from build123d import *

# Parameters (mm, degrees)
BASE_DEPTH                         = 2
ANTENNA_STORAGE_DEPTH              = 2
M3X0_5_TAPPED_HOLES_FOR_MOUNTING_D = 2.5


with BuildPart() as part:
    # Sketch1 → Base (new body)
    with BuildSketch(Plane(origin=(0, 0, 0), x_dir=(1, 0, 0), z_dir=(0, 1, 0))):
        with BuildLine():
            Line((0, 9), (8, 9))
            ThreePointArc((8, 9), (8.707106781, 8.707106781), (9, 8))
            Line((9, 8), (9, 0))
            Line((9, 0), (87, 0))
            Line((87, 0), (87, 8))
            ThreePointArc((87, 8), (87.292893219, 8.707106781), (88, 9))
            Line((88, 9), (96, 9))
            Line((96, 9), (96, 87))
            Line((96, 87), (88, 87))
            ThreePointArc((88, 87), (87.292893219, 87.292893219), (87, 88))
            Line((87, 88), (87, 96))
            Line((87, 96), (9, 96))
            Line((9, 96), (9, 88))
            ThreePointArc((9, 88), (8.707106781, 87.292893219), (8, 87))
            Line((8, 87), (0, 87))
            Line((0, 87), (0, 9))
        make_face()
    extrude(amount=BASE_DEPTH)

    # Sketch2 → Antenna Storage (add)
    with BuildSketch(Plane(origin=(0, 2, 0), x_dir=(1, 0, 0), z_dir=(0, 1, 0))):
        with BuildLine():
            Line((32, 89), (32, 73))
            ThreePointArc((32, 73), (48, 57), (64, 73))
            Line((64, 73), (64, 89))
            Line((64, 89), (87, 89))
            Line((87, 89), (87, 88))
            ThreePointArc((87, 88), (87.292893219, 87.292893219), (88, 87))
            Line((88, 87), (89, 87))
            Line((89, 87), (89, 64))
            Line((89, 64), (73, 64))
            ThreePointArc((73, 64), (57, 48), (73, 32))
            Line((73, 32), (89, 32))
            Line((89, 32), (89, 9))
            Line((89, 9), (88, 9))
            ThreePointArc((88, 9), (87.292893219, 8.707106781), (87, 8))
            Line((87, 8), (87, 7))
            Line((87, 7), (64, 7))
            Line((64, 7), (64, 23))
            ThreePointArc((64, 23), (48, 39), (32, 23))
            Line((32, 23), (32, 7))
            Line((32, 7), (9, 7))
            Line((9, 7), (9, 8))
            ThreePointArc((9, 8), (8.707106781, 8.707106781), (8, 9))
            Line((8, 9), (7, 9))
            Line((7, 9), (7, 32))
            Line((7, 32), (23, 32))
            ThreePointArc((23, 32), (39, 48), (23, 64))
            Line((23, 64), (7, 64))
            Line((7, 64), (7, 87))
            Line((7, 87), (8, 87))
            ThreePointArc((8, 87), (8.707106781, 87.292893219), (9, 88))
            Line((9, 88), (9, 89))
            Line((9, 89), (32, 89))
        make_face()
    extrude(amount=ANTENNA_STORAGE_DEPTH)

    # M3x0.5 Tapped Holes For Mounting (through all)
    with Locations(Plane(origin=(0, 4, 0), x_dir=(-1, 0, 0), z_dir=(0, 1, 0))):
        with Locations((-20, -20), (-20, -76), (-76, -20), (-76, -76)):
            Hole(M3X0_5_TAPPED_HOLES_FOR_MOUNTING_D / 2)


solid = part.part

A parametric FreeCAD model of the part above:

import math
import FreeCAD as App
import Part
import Sketcher
Q = App.Units.Quantity

doc = App.newDocument("Part")
body = doc.addObject("PartDesign::Body", "Body")

sketch1 = body.newObject("Sketcher::SketchObject", "Sketch")
sketch1.AttachmentSupport = (doc.getObject("XZ_Plane"), [""])
sketch1.MapMode = "FlatFace"
sketch1.addGeometry(Part.LineSegment(App.Vector(0, -9, 0), App.Vector(8, -9, 0)), False)
sketch1.addGeometry(Part.ArcOfCircle(Part.Circle(App.Vector(8, -8, 0), App.Vector(0, 0, 1), 1), math.radians(-90), math.radians(0)), False)
sketch1.addGeometry(Part.LineSegment(App.Vector(9, -8, 0), App.Vector(9, 0, 0)), False)
sketch1.addGeometry(Part.LineSegment(App.Vector(9, 0, 0), App.Vector(87, 0, 0)), False)
sketch1.addGeometry(Part.LineSegment(App.Vector(87, 0, 0), App.Vector(87, -8, 0)), False)
sketch1.addGeometry(Part.ArcOfCircle(Part.Circle(App.Vector(88, -8, 0), App.Vector(0, 0, 1), 1), math.radians(-180), math.radians(-90)), False)
sketch1.addGeometry(Part.LineSegment(App.Vector(88, -9, 0), App.Vector(96, -9, 0)), False)
sketch1.addGeometry(Part.LineSegment(App.Vector(96, -9, 0), App.Vector(96, -87, 0)), False)
sketch1.addGeometry(Part.LineSegment(App.Vector(96, -87, 0), App.Vector(88, -87, 0)), False)
sketch1.addGeometry(Part.ArcOfCircle(Part.Circle(App.Vector(88, -88, 0), App.Vector(0, 0, 1), 1), math.radians(90), math.radians(180)), False)
sketch1.addGeometry(Part.LineSegment(App.Vector(87, -88, 0), App.Vector(87, -96, 0)), False)
sketch1.addGeometry(Part.LineSegment(App.Vector(87, -96, 0), App.Vector(9, -96, 0)), False)
sketch1.addGeometry(Part.LineSegment(App.Vector(9, -96, 0), App.Vector(9, -88, 0)), False)
sketch1.addGeometry(Part.ArcOfCircle(Part.Circle(App.Vector(8, -88, 0), App.Vector(0, 0, 1), 1), math.radians(0), math.radians(90)), False)
sketch1.addGeometry(Part.LineSegment(App.Vector(8, -87, 0), App.Vector(0, -87, 0)), False)
sketch1.addGeometry(Part.LineSegment(App.Vector(0, -87, 0), App.Vector(0, -9, 0)), False)
sketch1.addConstraint(Sketcher.Constraint("Tangent", 0, 2, 1, 1))
sketch1.addConstraint(Sketcher.Constraint("Tangent", 1, 2, 2, 1))
sketch1.addConstraint(Sketcher.Constraint("Coincident", 2, 2, 3, 1))
sketch1.addConstraint(Sketcher.Constraint("Coincident", 3, 2, 4, 1))
sketch1.addConstraint(Sketcher.Constraint("Tangent", 4, 2, 5, 1))
sketch1.addConstraint(Sketcher.Constraint("Tangent", 5, 2, 6, 1))
sketch1.addConstraint(Sketcher.Constraint("Coincident", 6, 2, 7, 1))
sketch1.addConstraint(Sketcher.Constraint("Coincident", 7, 2, 8, 1))
sketch1.addConstraint(Sketcher.Constraint("Tangent", 8, 2, 9, 1))
sketch1.addConstraint(Sketcher.Constraint("Tangent", 9, 2, 10, 1))
sketch1.addConstraint(Sketcher.Constraint("Coincident", 10, 2, 11, 1))
sketch1.addConstraint(Sketcher.Constraint("Coincident", 11, 2, 12, 1))
sketch1.addConstraint(Sketcher.Constraint("Tangent", 12, 2, 13, 1))
sketch1.addConstraint(Sketcher.Constraint("Tangent", 13, 2, 14, 1))
sketch1.addConstraint(Sketcher.Constraint("Coincident", 14, 2, 15, 1))
sketch1.addConstraint(Sketcher.Constraint("Coincident", 15, 2, 0, 1))
sketch1.addConstraint(Sketcher.Constraint("Horizontal", 0))
sketch1.addConstraint(Sketcher.Constraint("Vertical", 2))
sketch1.addConstraint(Sketcher.Constraint("Horizontal", 3))
sketch1.addConstraint(Sketcher.Constraint("Vertical", 4))
sketch1.addConstraint(Sketcher.Constraint("Horizontal", 6))
sketch1.addConstraint(Sketcher.Constraint("Vertical", 7))
sketch1.addConstraint(Sketcher.Constraint("Horizontal", 8))
sketch1.addConstraint(Sketcher.Constraint("Vertical", 10))
sketch1.addConstraint(Sketcher.Constraint("Horizontal", 11))
sketch1.addConstraint(Sketcher.Constraint("Vertical", 12))
sketch1.addConstraint(Sketcher.Constraint("Horizontal", 14))
sketch1.addConstraint(Sketcher.Constraint("Vertical", 15))
sketch1.addConstraint(Sketcher.Constraint("Equal", 1, 5))
sketch1.addConstraint(Sketcher.Constraint("Equal", 5, 9))
sketch1.addConstraint(Sketcher.Constraint("Equal", 9, 13))
sketch1.addConstraint(Sketcher.Constraint("PointOnObject", 2, 2, -1))
sketch1.addConstraint(Sketcher.Constraint("PointOnObject", 14, 2, -2))
sketch1.addConstraint(Sketcher.Constraint("Horizontal", 1, 3, 5, 3))
sketch1.addConstraint(Sketcher.Constraint("Horizontal", 9, 3, 13, 3))
sketch1.addConstraint(Sketcher.Constraint("Vertical", 5, 3, 9, 3))
sketch1.addConstraint(Sketcher.Constraint("Vertical", 1, 3, 13, 3))
sketch1.addConstraint(Sketcher.Constraint("Equal", 0, 6))
sketch1.addConstraint(Sketcher.Constraint("Equal", 14, 2))
sketch1.addConstraint(Sketcher.Constraint("Equal", 11, 7))
sketch1.addConstraint(Sketcher.Constraint("Equal", 4, 10))
sketch1.addConstraint(Sketcher.Constraint("Radius", 1, Q("1 mm")))
sketch1.addConstraint(Sketcher.Constraint("DistanceX", 0, 1, 0, 2, Q("8 mm")))
sketch1.addConstraint(Sketcher.Constraint("DistanceX", 3, 1, 3, 2, Q("78 mm")))
pad1 = body.newObject("PartDesign::Pad", "Pad")
pad1.Profile = sketch1
pad1.Length = 2
pad1.Reversed = True

sketch2 = body.newObject("Sketcher::SketchObject", "Sketch001")
sketch2.AttachmentSupport = (doc.getObject("XZ_Plane"), [""])
sketch2.MapMode = "FlatFace"
sketch2.AttachmentOffset = App.Placement(App.Vector(0, 0, -2), App.Rotation())
sketch2.addGeometry(Part.LineSegment(App.Vector(32, -73, 0), App.Vector(32, -89, 0)), False)
sketch2.addGeometry(Part.LineSegment(App.Vector(32, -89, 0), App.Vector(9, -89, 0)), False)
sketch2.addGeometry(Part.LineSegment(App.Vector(9, -89, 0), App.Vector(9, -88, 0)), False)
sketch2.addGeometry(Part.ArcOfCircle(Part.Circle(App.Vector(8, -88, 0), App.Vector(0, 0, 1), 1), math.radians(0), math.radians(90)), False)
sketch2.addGeometry(Part.LineSegment(App.Vector(8, -87, 0), App.Vector(7, -87, 0)), False)
sketch2.addGeometry(Part.LineSegment(App.Vector(7, -87, 0), App.Vector(7, -64, 0)), False)
sketch2.addGeometry(Part.LineSegment(App.Vector(7, -64, 0), App.Vector(23, -64, 0)), False)
sketch2.addGeometry(Part.ArcOfCircle(Part.Circle(App.Vector(23, -48, 0), App.Vector(0, 0, 1), 16), math.radians(-90), math.radians(90)), False)
sketch2.addGeometry(Part.LineSegment(App.Vector(23, -32, 0), App.Vector(7, -32, 0)), False)
sketch2.addGeometry(Part.LineSegment(App.Vector(7, -32, 0), App.Vector(7, -9, 0)), False)
sketch2.addGeometry(Part.LineSegment(App.Vector(7, -9, 0), App.Vector(8, -9, 0)), False)
sketch2.addGeometry(Part.ArcOfCircle(Part.Circle(App.Vector(8, -8, 0), App.Vector(0, 0, 1), 1), math.radians(-90), math.radians(0)), False)
sketch2.addGeometry(Part.LineSegment(App.Vector(9, -8, 0), App.Vector(9, -7, 0)), False)
sketch2.addGeometry(Part.LineSegment(App.Vector(9, -7, 0), App.Vector(32, -7, 0)), False)
sketch2.addGeometry(Part.LineSegment(App.Vector(32, -7, 0), App.Vector(32, -23, 0)), False)
sketch2.addGeometry(Part.ArcOfCircle(Part.Circle(App.Vector(48, -23, 0), App.Vector(0, 0, 1), 16), math.radians(180), math.radians(360)), False)
sketch2.addGeometry(Part.LineSegment(App.Vector(64, -23, 0), App.Vector(64, -7, 0)), False)
sketch2.addGeometry(Part.LineSegment(App.Vector(64, -7, 0), App.Vector(87, -7, 0)), False)
sketch2.addGeometry(Part.LineSegment(App.Vector(87, -7, 0), App.Vector(87, -8, 0)), False)
sketch2.addGeometry(Part.ArcOfCircle(Part.Circle(App.Vector(88, -8, 0), App.Vector(0, 0, 1), 1), math.radians(-180), math.radians(-90)), False)
sketch2.addGeometry(Part.LineSegment(App.Vector(88, -9, 0), App.Vector(89, -9, 0)), False)
sketch2.addGeometry(Part.LineSegment(App.Vector(89, -9, 0), App.Vector(89, -32, 0)), False)
sketch2.addGeometry(Part.LineSegment(App.Vector(89, -32, 0), App.Vector(73, -32, 0)), False)
sketch2.addGeometry(Part.ArcOfCircle(Part.Circle(App.Vector(73, -48, 0), App.Vector(0, 0, 1), 16), math.radians(90), math.radians(270)), False)
sketch2.addGeometry(Part.LineSegment(App.Vector(73, -64, 0), App.Vector(89, -64, 0)), False)
sketch2.addGeometry(Part.LineSegment(App.Vector(89, -64, 0), App.Vector(89, -87, 0)), False)
sketch2.addGeometry(Part.LineSegment(App.Vector(89, -87, 0), App.Vector(88, -87, 0)), False)
sketch2.addGeometry(Part.ArcOfCircle(Part.Circle(App.Vector(88, -88, 0), App.Vector(0, 0, 1), 1), math.radians(90), math.radians(180)), False)
sketch2.addGeometry(Part.LineSegment(App.Vector(87, -88, 0), App.Vector(87, -89, 0)), False)
sketch2.addGeometry(Part.LineSegment(App.Vector(87, -89, 0), App.Vector(64, -89, 0)), False)
sketch2.addGeometry(Part.LineSegment(App.Vector(64, -89, 0), App.Vector(64, -73, 0)), False)
sketch2.addGeometry(Part.ArcOfCircle(Part.Circle(App.Vector(48, -73, 0), App.Vector(0, 0, 1), 16), math.radians(0), math.radians(180)), False)
sketch2.addConstraint(Sketcher.Constraint("Coincident", 0, 2, 1, 1))
sketch2.addConstraint(Sketcher.Constraint("Coincident", 1, 2, 2, 1))
sketch2.addConstraint(Sketcher.Constraint("Tangent", 2, 2, 3, 1))
sketch2.addConstraint(Sketcher.Constraint("Tangent", 3, 2, 4, 1))
sketch2.addConstraint(Sketcher.Constraint("Coincident", 4, 2, 5, 1))
sketch2.addConstraint(Sketcher.Constraint("Coincident", 5, 2, 6, 1))
sketch2.addConstraint(Sketcher.Constraint("Tangent", 6, 2, 7, 1))
sketch2.addConstraint(Sketcher.Constraint("Tangent", 7, 2, 8, 1))
sketch2.addConstraint(Sketcher.Constraint("Coincident", 8, 2, 9, 1))
sketch2.addConstraint(Sketcher.Constraint("Coincident", 9, 2, 10, 1))
sketch2.addConstraint(Sketcher.Constraint("Tangent", 10, 2, 11, 1))
sketch2.addConstraint(Sketcher.Constraint("Tangent", 11, 2, 12, 1))
sketch2.addConstraint(Sketcher.Constraint("Coincident", 12, 2, 13, 1))
sketch2.addConstraint(Sketcher.Constraint("Coincident", 13, 2, 14, 1))
sketch2.addConstraint(Sketcher.Constraint("Tangent", 14, 2, 15, 1))
sketch2.addConstraint(Sketcher.Constraint("Tangent", 15, 2, 16, 1))
sketch2.addConstraint(Sketcher.Constraint("Coincident", 16, 2, 17, 1))
sketch2.addConstraint(Sketcher.Constraint("Coincident", 17, 2, 18, 1))
sketch2.addConstraint(Sketcher.Constraint("Tangent", 18, 2, 19, 1))
sketch2.addConstraint(Sketcher.Constraint("Tangent", 19, 2, 20, 1))
sketch2.addConstraint(Sketcher.Constraint("Coincident", 20, 2, 21, 1))
sketch2.addConstraint(Sketcher.Constraint("Coincident", 21, 2, 22, 1))
sketch2.addConstraint(Sketcher.Constraint("Tangent", 22, 2, 23, 1))
sketch2.addConstraint(Sketcher.Constraint("Tangent", 23, 2, 24, 1))
sketch2.addConstraint(Sketcher.Constraint("Coincident", 24, 2, 25, 1))
sketch2.addConstraint(Sketcher.Constraint("Coincident", 25, 2, 26, 1))
sketch2.addConstraint(Sketcher.Constraint("Tangent", 26, 2, 27, 1))
sketch2.addConstraint(Sketcher.Constraint("Tangent", 27, 2, 28, 1))
sketch2.addConstraint(Sketcher.Constraint("Coincident", 28, 2, 29, 1))
sketch2.addConstraint(Sketcher.Constraint("Coincident", 29, 2, 30, 1))
sketch2.addConstraint(Sketcher.Constraint("Tangent", 30, 2, 31, 1))
sketch2.addConstraint(Sketcher.Constraint("Tangent", 31, 2, 0, 1))
sketch2.addConstraint(Sketcher.Constraint("Vertical", 0))
sketch2.addConstraint(Sketcher.Constraint("Horizontal", 1))
sketch2.addConstraint(Sketcher.Constraint("Vertical", 2))
sketch2.addConstraint(Sketcher.Constraint("Horizontal", 4))
sketch2.addConstraint(Sketcher.Constraint("Vertical", 5))
sketch2.addConstraint(Sketcher.Constraint("Horizontal", 6))
sketch2.addConstraint(Sketcher.Constraint("Horizontal", 8))
sketch2.addConstraint(Sketcher.Constraint("Vertical", 9))
sketch2.addConstraint(Sketcher.Constraint("Horizontal", 10))
sketch2.addConstraint(Sketcher.Constraint("Vertical", 12))
sketch2.addConstraint(Sketcher.Constraint("Horizontal", 13))
sketch2.addConstraint(Sketcher.Constraint("Vertical", 14))
sketch2.addConstraint(Sketcher.Constraint("Vertical", 16))
sketch2.addConstraint(Sketcher.Constraint("Horizontal", 17))
sketch2.addConstraint(Sketcher.Constraint("Vertical", 18))
sketch2.addConstraint(Sketcher.Constraint("Horizontal", 20))
sketch2.addConstraint(Sketcher.Constraint("Vertical", 21))
sketch2.addConstraint(Sketcher.Constraint("Horizontal", 22))
sketch2.addConstraint(Sketcher.Constraint("Horizontal", 24))
sketch2.addConstraint(Sketcher.Constraint("Vertical", 25))
sketch2.addConstraint(Sketcher.Constraint("Horizontal", 26))
sketch2.addConstraint(Sketcher.Constraint("Vertical", 28))
sketch2.addConstraint(Sketcher.Constraint("Horizontal", 29))
sketch2.addConstraint(Sketcher.Constraint("Vertical", 30))
sketch2.addConstraint(Sketcher.Constraint("Equal", 3, 11))
sketch2.addConstraint(Sketcher.Constraint("Equal", 7, 15))
sketch2.addConstraint(Sketcher.Constraint("Equal", 11, 19))
sketch2.addConstraint(Sketcher.Constraint("Equal", 15, 23))
sketch2.addConstraint(Sketcher.Constraint("Equal", 19, 27))
sketch2.addConstraint(Sketcher.Constraint("Equal", 23, 31))
sketch2.addConstraint(Sketcher.Constraint("Horizontal", 11, 3, 19, 3))
sketch2.addConstraint(Sketcher.Constraint("Horizontal", 7, 3, 23, 3))
sketch2.addConstraint(Sketcher.Constraint("Horizontal", 3, 3, 27, 3))
sketch2.addConstraint(Sketcher.Constraint("Horizontal", 13, 2, 16, 2))
sketch2.addConstraint(Sketcher.Constraint("Horizontal", 1, 2, 28, 2))
sketch2.addConstraint(Sketcher.Constraint("Vertical", 3, 3, 11, 3))
sketch2.addConstraint(Sketcher.Constraint("Vertical", 19, 3, 27, 3))
sketch2.addConstraint(Sketcher.Constraint("Vertical", 15, 3, 31, 3))
sketch2.addConstraint(Sketcher.Constraint("Vertical", 5, 2, 8, 2))
sketch2.addConstraint(Sketcher.Constraint("Vertical", 21, 2, 24, 2))
sketch2.addConstraint(Sketcher.Constraint("Equal", 13, 17))
sketch2.addConstraint(Sketcher.Constraint("Equal", 10, 20))
sketch2.addConstraint(Sketcher.Constraint("Equal", 8, 22))
sketch2.addConstraint(Sketcher.Constraint("Equal", 24, 0))
sketch2.addConstraint(Sketcher.Constraint("Equal", 26, 2))
sketch2.addConstraint(Sketcher.Constraint("Equal", 29, 5))
sketch2.addConstraint(Sketcher.Constraint("Equal", 5, 9))
sketch2.addConstraint(Sketcher.Constraint("Equal", 2, 12))
sketch2.addConstraint(Sketcher.Constraint("Equal", 0, 14))
sketch2.addConstraint(Sketcher.Constraint("Radius", 3, Q("1 mm")))
sketch2.addConstraint(Sketcher.Constraint("Radius", 7, Q("16 mm")))
sketch2.addConstraint(Sketcher.Constraint("DistanceX", 1, 2, 1, 1, Q("23 mm")))
sketch2.addConstraint(Sketcher.Constraint("DistanceX", 4, 2, 4, 1, Q("1 mm")))
sketch2.addConstraint(Sketcher.Constraint("DistanceX", 6, 1, 6, 2, Q("16 mm")))
sketch2.addConstraint(Sketcher.Constraint("DistanceX", -1, 1, 3, 3, Q("8 mm")))
sketch2.addConstraint(Sketcher.Constraint("DistanceY", 3, 3, -1, 1, Q("88 mm")))
pad2 = body.newObject("PartDesign::Pad", "Pad001")
pad2.Profile = sketch2
pad2.Length = 2
pad2.Reversed = True

sketch3 = body.newObject("Sketcher::SketchObject", "Sketch002")
sketch3.AttachmentSupport = (doc.getObject("XZ_Plane"), [""])
sketch3.MapMode = "FlatFace"
sketch3.AttachmentOffset = App.Placement(App.Vector(0, 0, -4), App.Rotation())
sketch3.addGeometry(Part.Circle(App.Vector(20, -20, 0), App.Vector(0, 0, 1), 1.2), False)
sketch3.addGeometry(Part.Circle(App.Vector(20, -76, 0), App.Vector(0, 0, 1), 1.2), False)
sketch3.addGeometry(Part.Circle(App.Vector(76, -20, 0), App.Vector(0, 0, 1), 1.2), False)
sketch3.addGeometry(Part.Circle(App.Vector(76, -76, 0), App.Vector(0, 0, 1), 1.2), False)
sketch3.addConstraint(Sketcher.Constraint("Equal", 0, 1))
sketch3.addConstraint(Sketcher.Constraint("Equal", 1, 2))
sketch3.addConstraint(Sketcher.Constraint("Equal", 2, 3))
sketch3.addConstraint(Sketcher.Constraint("Horizontal", 0, 3, 2, 3))
sketch3.addConstraint(Sketcher.Constraint("Horizontal", 1, 3, 3, 3))
sketch3.addConstraint(Sketcher.Constraint("Vertical", 0, 3, 1, 3))
sketch3.addConstraint(Sketcher.Constraint("Vertical", 2, 3, 3, 3))
sketch3.addConstraint(Sketcher.Constraint("Diameter", 0, Q("2.5 mm")))
sketch3.addConstraint(Sketcher.Constraint("DistanceX", -1, 1, 0, 3, Q("20 mm")))
sketch3.addConstraint(Sketcher.Constraint("DistanceY", 0, 3, -1, 1, Q("20 mm")))
sketch3.addConstraint(Sketcher.Constraint("DistanceY", 1, 3, -1, 1, Q("76 mm")))
sketch3.addConstraint(Sketcher.Constraint("DistanceX", -1, 1, 2, 3, Q("76 mm")))
doc.recompute()
hole = body.newObject("PartDesign::Hole", "Hole")
hole.Profile = sketch3
hole.ThreadType = "None"
hole.Diameter = 2.5
hole.DepthType = "ThroughAll"
hole.Reversed = True

doc.recompute()
